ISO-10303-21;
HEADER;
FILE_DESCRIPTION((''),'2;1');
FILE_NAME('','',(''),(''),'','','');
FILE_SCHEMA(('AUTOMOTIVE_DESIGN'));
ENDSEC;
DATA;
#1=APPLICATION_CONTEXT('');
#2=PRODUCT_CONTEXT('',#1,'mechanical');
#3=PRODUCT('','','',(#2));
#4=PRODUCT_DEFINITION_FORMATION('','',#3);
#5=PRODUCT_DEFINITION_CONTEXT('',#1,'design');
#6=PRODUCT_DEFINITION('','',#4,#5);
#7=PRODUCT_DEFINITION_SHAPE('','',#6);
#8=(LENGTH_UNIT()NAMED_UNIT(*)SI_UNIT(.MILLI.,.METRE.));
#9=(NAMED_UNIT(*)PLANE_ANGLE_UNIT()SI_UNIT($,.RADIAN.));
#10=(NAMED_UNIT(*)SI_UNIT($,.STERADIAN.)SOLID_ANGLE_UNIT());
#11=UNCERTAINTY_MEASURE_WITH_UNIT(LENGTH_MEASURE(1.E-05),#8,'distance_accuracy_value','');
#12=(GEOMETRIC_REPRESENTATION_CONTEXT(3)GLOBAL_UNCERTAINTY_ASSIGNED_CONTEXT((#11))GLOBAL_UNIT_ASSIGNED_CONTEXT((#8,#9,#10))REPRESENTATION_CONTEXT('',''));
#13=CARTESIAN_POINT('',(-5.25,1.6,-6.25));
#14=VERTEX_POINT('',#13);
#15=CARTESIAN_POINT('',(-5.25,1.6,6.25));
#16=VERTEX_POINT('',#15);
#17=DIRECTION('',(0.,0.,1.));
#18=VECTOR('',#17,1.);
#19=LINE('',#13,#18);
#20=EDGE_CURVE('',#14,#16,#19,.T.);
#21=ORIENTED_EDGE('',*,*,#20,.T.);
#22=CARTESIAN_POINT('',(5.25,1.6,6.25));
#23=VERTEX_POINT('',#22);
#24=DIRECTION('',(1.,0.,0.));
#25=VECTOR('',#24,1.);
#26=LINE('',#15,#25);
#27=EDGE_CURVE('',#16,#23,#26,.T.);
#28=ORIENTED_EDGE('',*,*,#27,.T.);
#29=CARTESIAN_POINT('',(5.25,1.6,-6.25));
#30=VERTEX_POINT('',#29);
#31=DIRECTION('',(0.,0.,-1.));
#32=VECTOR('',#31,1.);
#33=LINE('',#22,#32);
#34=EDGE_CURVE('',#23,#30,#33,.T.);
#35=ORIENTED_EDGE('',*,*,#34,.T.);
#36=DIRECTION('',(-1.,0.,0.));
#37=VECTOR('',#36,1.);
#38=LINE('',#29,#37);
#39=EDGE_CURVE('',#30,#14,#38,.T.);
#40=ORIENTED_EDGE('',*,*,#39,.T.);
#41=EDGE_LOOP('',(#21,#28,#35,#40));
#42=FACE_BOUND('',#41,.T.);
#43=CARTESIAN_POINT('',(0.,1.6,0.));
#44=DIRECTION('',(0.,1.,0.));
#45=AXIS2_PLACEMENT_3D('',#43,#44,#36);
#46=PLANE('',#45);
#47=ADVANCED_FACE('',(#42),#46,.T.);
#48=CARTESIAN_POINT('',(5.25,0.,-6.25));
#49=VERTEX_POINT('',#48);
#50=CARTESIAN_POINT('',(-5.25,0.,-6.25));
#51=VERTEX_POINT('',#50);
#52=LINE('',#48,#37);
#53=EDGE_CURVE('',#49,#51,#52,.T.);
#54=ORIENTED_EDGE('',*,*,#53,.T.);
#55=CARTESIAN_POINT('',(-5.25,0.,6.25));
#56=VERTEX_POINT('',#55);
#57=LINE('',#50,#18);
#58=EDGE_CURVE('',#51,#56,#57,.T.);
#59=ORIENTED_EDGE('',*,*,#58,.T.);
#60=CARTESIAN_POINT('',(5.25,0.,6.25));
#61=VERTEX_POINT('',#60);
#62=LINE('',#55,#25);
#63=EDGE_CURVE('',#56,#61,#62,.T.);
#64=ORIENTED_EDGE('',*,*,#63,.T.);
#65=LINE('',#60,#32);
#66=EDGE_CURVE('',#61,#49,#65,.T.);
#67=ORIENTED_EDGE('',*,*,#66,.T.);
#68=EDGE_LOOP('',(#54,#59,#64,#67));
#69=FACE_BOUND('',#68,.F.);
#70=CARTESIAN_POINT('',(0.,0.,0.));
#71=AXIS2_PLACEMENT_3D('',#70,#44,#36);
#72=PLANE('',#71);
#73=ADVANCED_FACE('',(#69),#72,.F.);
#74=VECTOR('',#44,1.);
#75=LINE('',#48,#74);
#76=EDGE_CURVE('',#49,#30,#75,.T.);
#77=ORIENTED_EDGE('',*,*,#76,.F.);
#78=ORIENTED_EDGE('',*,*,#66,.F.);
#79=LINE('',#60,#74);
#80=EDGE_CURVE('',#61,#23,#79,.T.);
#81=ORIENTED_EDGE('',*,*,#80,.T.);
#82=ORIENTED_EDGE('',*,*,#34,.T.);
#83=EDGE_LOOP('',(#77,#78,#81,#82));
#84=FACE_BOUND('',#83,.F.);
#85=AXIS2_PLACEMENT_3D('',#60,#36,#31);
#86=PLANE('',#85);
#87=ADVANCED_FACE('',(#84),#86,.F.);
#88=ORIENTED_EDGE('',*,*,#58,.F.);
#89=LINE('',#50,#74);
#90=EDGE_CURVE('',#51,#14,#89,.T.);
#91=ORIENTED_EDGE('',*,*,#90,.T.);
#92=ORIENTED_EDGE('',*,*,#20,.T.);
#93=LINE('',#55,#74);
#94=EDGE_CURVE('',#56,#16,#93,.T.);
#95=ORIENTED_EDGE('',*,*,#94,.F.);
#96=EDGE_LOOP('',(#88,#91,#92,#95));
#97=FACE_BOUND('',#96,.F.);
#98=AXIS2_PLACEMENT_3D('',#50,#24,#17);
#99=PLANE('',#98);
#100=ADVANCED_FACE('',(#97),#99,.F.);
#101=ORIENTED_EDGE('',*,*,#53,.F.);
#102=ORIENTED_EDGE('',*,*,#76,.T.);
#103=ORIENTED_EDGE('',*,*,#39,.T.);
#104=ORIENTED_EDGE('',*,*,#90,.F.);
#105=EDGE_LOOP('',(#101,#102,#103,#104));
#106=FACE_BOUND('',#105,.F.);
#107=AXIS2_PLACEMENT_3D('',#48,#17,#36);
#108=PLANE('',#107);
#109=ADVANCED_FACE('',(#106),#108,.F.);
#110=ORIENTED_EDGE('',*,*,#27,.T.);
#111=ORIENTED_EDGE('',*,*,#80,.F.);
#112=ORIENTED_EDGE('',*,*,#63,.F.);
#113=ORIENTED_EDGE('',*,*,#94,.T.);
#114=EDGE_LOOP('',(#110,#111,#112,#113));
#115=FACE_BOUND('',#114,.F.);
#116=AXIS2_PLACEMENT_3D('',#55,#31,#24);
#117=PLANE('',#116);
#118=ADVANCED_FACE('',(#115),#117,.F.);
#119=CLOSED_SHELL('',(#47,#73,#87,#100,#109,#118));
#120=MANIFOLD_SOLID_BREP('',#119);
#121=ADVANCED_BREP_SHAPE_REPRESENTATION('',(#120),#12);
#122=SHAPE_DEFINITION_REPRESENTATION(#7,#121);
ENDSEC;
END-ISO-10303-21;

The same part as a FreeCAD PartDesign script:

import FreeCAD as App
import Part
import Sketcher

V = App.Vector
Q = App.Units.Quantity


def add_polygon(sketch, points):
    """Adds a closed chain of lines whose ends are joined by coincident constraints."""
    first, n = sketch.GeometryCount, len(points)
    for a, b in zip(points, points[1:] + points[:1]):
        sketch.addGeometry(Part.LineSegment(App.Vector(*a, 0), App.Vector(*b, 0)), False)
    for i in range(n):
        sketch.addConstraint(Sketcher.Constraint("Coincident", first + i, 2, first + (i + 1) % n, 1))

doc = App.newDocument("Part")
params = doc.addObject("Spreadsheet::Sheet", "Params")
for row, (alias, value) in enumerate([
    ("sketch1_width", "10.5 mm"),
    ("sketch1_height", "12.5 mm"),
    ("pad1_length", "1.6 mm"),
], start=1):
    params.set(f"A{row}", alias)
    params.set(f"B{row}", "=" + value)
    params.setAlias(f"B{row}", alias)

body = doc.addObject("PartDesign::Body", "Body")

# Sketch on XZ plane
sketch1 = body.newObject("Sketcher::SketchObject", "Sketch")
sketch1.AttachmentSupport = (doc.getObject("XZ_Plane"), [""])
sketch1.MapMode = "FlatFace"
add_polygon(sketch1, [(5, 6), (5, -6), (-5, -6), (-5, 6)])  # lines 0-3
sketch1.addConstraint([
    Sketcher.Constraint("Vertical", 0),
    Sketcher.Constraint("Horizontal", 1),
    Sketcher.Constraint("Vertical", 2),
    Sketcher.Constraint("Horizontal", 3),
    Sketcher.Constraint("Symmetric", 0, 2, 2, 2, -1, 1),
    Sketcher.Constraint("DistanceX", 1, 2, 1, 1, Q("10.5 mm")),
    Sketcher.Constraint("DistanceY", 0, 2, 0, 1, Q("12.5 mm")),
])
sketch1.setExpression("Constraints[9]", "Params.sketch1_width")
sketch1.setExpression("Constraints[10]", "Params.sketch1_height")
pad1 = body.newObject("PartDesign::Pad", "Pad")
pad1.Profile = sketch1
pad1.setExpression("Length", "Params.pad1_length")
pad1.Reversed = True

doc.recompute()
